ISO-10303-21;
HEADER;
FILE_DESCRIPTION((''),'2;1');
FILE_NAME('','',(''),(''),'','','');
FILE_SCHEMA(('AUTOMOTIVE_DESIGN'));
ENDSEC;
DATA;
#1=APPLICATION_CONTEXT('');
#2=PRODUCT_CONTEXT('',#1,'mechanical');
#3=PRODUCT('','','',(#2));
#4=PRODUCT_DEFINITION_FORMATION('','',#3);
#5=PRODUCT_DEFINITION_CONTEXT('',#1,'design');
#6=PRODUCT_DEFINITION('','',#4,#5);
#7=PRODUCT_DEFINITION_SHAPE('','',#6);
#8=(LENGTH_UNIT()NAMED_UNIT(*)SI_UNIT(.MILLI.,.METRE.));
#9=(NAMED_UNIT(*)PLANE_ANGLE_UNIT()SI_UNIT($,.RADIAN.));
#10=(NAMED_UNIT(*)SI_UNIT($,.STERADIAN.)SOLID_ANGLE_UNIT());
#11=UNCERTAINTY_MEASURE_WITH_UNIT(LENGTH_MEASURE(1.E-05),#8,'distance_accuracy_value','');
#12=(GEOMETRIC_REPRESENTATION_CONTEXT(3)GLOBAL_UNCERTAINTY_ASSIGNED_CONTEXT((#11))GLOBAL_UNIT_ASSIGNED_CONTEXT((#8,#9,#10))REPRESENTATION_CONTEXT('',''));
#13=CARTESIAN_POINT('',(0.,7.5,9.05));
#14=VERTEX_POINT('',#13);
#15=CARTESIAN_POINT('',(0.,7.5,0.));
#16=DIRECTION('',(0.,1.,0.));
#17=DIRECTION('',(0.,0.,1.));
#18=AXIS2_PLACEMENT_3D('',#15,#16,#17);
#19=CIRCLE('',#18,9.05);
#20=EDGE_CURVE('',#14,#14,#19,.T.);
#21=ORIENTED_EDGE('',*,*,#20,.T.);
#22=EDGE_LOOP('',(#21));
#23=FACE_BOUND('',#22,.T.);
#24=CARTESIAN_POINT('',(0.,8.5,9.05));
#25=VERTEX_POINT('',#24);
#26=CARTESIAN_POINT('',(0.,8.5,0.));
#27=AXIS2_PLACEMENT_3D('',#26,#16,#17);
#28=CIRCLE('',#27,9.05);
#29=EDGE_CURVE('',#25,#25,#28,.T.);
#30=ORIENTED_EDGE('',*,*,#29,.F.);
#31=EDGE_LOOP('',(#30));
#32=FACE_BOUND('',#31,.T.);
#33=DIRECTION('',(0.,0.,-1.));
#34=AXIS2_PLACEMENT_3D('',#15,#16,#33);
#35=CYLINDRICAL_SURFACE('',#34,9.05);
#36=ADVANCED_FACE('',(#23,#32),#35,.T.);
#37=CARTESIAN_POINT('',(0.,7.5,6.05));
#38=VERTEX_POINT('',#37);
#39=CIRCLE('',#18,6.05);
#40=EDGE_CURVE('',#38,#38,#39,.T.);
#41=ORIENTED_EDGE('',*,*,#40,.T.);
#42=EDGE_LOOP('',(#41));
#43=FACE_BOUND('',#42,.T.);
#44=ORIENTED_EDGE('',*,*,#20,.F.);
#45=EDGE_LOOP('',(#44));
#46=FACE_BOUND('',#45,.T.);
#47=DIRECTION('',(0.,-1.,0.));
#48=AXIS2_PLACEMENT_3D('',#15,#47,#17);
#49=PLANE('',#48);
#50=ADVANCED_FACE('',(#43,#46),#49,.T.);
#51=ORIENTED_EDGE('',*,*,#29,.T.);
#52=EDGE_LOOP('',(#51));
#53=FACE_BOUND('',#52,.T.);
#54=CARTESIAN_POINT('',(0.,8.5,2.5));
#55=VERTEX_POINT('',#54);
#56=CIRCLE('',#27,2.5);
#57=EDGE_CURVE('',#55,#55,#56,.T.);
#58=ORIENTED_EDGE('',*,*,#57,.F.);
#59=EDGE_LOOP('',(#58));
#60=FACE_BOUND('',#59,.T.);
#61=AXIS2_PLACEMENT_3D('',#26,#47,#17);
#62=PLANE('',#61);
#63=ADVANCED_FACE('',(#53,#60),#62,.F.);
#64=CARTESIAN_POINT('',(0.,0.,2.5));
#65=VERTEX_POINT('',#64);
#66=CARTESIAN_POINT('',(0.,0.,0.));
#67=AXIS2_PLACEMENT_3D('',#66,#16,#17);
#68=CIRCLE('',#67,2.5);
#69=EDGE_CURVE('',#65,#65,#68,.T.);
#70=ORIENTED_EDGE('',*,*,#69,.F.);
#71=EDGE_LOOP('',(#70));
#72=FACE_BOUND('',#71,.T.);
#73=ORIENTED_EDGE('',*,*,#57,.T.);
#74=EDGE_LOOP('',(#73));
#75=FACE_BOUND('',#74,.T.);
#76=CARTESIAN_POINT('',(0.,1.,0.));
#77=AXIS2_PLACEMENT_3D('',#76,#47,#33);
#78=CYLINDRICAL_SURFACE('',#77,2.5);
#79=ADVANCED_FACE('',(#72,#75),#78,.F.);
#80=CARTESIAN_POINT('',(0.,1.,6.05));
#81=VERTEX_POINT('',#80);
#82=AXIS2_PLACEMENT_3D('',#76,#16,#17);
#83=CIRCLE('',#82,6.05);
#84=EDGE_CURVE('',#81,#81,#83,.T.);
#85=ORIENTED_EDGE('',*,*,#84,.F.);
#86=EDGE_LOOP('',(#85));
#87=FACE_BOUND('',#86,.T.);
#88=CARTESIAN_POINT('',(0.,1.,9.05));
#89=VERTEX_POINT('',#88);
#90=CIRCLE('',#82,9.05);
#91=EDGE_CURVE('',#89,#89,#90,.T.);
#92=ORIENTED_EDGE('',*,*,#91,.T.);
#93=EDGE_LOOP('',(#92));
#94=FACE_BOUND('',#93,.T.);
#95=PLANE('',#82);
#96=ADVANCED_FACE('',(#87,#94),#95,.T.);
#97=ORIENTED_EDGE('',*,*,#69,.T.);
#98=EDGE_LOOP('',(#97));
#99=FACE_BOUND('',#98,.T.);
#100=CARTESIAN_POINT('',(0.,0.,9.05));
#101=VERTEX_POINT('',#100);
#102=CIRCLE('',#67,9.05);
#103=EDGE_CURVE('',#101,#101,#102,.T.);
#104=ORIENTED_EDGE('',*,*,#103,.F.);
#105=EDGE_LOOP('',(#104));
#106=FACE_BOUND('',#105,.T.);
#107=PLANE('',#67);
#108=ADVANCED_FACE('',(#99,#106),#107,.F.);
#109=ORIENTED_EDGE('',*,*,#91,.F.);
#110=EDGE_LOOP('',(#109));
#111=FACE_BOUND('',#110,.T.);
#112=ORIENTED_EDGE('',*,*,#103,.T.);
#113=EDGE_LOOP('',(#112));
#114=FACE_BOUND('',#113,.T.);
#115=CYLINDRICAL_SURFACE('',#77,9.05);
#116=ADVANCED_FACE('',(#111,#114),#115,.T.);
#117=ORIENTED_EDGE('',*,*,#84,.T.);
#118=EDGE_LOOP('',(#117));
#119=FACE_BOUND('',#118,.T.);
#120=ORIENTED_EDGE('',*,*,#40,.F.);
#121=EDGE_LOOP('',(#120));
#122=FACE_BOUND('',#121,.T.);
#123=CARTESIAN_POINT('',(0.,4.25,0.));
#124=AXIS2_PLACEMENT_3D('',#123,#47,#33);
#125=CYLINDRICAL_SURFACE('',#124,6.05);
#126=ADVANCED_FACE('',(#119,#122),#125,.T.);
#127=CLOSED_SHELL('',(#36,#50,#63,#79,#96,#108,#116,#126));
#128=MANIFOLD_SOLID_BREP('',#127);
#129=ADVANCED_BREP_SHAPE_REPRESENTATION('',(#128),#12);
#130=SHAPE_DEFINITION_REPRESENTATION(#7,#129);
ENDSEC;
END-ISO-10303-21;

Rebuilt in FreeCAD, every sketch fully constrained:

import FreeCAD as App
import Part
import Sketcher

V = App.Vector

doc = App.newDocument("Part")
params = doc.addObject("Spreadsheet::Sheet", "Params")
for row, (alias, value) in enumerate([
    ("sketch1_diameter", "5 mm"),
    ("sketch1_diameter2", "18.1 mm"),
    ("pad1_length", "1 mm"),
    ("sketch2_diameter", "5 mm"),
    ("sketch2_diameter2", "12.1 mm"),
    ("pad2_length", "3.25 mm"),
], start=1):
    params.set(f"A{row}", alias)
    params.set(f"B{row}", "=" + value)
    params.setAlias(f"B{row}", alias)

body = doc.addObject("PartDesign::Body", "Body")

sketch1 = doc.addObject("Sketcher::SketchObject", "Sketch")
body.addObject(sketch1)
sketch1.AttachmentSupport = (doc.XZ_Plane, [""])
sketch1.MapMode = "FlatFace"
sketch1.addGeometry(Part.Circle(V(0, 0, 0), V(0, 0, 1), 9.1), False)
sketch1.addGeometry(Part.Circle(V(0, 0, 0), V(0, 0, 1), 2.5), False)
sketch1.addConstraint(Sketcher.Constraint("Coincident", 0, 3, -1, 1))
sketch1.addConstraint(Sketcher.Constraint("Coincident", 1, 3, -1, 1))
sketch1.addConstraint(Sketcher.Constraint("Diameter", 1, 5.0))
sketch1.addConstraint(Sketcher.Constraint("Diameter", 0, 18.1))
sketch1.setExpression("Constraints[2]", "Params.sketch1_diameter")
sketch1.setExpression("Constraints[3]", "Params.sketch1_diameter2")
pad1 = doc.addObject("PartDesign::Pad", "Pad")
body.addObject(pad1)
pad1.Profile = sketch1
pad1.setExpression("Length", "Params.pad1_length")
pad1.Reversed = True

sketch2 = doc.addObject("Sketcher::SketchObject", "Sketch001")
body.addObject(sketch2)
sketch2.AttachmentSupport = (doc.XZ_Plane, [""])
sketch2.MapMode = "FlatFace"
sketch2.AttachmentOffset = App.Placement(V(0, 0, -1), App.Rotation())
sketch2.addGeometry(Part.Circle(V(0, 0, 0), V(0, 0, 1), 6), False)
sketch2.addGeometry(Part.Circle(V(0, 0, 0), V(0, 0, 1), 2.5), False)
sketch2.addConstraint(Sketcher.Constraint("Coincident", 0, 3, -1, 1))
sketch2.addConstraint(Sketcher.Constraint("Coincident", 1, 3, -1, 1))
sketch2.addConstraint(Sketcher.Constraint("Diameter", 1, 5.0))
sketch2.addConstraint(Sketcher.Constraint("Diameter", 0, 12.1))
sketch2.setExpression("Constraints[2]", "Params.sketch2_diameter")
sketch2.setExpression("Constraints[3]", "Params.sketch2_diameter2")
pad2 = doc.addObject("PartDesign::Pad", "Pad001")
body.addObject(pad2)
pad2.Profile = sketch2
pad2.setExpression("Length", "Params.pad2_length")
pad2.Reversed = True
body2 = doc.addObject("PartDesign::Body", "Body001")
doc.recompute()

body2.BaseFeature = body
doc.recompute()

mirroring = doc.addObject("Part::Mirroring", "Mirroring")
mirroring.Source = body
mirroring.Base = V(0, 4.25, 0)
mirroring.Normal = V(0, 1, 0)
body3 = doc.addObject("PartDesign::Body", "Body002")
body3.BaseFeature = mirroring
boolean = doc.addObject("PartDesign::Boolean", "Boolean")
body2.addObject(boolean)
boolean.Type = "Fuse"
boolean.addObjects([body3])
doc.recompute()
mirroring.Visibility = False

doc.recompute()
